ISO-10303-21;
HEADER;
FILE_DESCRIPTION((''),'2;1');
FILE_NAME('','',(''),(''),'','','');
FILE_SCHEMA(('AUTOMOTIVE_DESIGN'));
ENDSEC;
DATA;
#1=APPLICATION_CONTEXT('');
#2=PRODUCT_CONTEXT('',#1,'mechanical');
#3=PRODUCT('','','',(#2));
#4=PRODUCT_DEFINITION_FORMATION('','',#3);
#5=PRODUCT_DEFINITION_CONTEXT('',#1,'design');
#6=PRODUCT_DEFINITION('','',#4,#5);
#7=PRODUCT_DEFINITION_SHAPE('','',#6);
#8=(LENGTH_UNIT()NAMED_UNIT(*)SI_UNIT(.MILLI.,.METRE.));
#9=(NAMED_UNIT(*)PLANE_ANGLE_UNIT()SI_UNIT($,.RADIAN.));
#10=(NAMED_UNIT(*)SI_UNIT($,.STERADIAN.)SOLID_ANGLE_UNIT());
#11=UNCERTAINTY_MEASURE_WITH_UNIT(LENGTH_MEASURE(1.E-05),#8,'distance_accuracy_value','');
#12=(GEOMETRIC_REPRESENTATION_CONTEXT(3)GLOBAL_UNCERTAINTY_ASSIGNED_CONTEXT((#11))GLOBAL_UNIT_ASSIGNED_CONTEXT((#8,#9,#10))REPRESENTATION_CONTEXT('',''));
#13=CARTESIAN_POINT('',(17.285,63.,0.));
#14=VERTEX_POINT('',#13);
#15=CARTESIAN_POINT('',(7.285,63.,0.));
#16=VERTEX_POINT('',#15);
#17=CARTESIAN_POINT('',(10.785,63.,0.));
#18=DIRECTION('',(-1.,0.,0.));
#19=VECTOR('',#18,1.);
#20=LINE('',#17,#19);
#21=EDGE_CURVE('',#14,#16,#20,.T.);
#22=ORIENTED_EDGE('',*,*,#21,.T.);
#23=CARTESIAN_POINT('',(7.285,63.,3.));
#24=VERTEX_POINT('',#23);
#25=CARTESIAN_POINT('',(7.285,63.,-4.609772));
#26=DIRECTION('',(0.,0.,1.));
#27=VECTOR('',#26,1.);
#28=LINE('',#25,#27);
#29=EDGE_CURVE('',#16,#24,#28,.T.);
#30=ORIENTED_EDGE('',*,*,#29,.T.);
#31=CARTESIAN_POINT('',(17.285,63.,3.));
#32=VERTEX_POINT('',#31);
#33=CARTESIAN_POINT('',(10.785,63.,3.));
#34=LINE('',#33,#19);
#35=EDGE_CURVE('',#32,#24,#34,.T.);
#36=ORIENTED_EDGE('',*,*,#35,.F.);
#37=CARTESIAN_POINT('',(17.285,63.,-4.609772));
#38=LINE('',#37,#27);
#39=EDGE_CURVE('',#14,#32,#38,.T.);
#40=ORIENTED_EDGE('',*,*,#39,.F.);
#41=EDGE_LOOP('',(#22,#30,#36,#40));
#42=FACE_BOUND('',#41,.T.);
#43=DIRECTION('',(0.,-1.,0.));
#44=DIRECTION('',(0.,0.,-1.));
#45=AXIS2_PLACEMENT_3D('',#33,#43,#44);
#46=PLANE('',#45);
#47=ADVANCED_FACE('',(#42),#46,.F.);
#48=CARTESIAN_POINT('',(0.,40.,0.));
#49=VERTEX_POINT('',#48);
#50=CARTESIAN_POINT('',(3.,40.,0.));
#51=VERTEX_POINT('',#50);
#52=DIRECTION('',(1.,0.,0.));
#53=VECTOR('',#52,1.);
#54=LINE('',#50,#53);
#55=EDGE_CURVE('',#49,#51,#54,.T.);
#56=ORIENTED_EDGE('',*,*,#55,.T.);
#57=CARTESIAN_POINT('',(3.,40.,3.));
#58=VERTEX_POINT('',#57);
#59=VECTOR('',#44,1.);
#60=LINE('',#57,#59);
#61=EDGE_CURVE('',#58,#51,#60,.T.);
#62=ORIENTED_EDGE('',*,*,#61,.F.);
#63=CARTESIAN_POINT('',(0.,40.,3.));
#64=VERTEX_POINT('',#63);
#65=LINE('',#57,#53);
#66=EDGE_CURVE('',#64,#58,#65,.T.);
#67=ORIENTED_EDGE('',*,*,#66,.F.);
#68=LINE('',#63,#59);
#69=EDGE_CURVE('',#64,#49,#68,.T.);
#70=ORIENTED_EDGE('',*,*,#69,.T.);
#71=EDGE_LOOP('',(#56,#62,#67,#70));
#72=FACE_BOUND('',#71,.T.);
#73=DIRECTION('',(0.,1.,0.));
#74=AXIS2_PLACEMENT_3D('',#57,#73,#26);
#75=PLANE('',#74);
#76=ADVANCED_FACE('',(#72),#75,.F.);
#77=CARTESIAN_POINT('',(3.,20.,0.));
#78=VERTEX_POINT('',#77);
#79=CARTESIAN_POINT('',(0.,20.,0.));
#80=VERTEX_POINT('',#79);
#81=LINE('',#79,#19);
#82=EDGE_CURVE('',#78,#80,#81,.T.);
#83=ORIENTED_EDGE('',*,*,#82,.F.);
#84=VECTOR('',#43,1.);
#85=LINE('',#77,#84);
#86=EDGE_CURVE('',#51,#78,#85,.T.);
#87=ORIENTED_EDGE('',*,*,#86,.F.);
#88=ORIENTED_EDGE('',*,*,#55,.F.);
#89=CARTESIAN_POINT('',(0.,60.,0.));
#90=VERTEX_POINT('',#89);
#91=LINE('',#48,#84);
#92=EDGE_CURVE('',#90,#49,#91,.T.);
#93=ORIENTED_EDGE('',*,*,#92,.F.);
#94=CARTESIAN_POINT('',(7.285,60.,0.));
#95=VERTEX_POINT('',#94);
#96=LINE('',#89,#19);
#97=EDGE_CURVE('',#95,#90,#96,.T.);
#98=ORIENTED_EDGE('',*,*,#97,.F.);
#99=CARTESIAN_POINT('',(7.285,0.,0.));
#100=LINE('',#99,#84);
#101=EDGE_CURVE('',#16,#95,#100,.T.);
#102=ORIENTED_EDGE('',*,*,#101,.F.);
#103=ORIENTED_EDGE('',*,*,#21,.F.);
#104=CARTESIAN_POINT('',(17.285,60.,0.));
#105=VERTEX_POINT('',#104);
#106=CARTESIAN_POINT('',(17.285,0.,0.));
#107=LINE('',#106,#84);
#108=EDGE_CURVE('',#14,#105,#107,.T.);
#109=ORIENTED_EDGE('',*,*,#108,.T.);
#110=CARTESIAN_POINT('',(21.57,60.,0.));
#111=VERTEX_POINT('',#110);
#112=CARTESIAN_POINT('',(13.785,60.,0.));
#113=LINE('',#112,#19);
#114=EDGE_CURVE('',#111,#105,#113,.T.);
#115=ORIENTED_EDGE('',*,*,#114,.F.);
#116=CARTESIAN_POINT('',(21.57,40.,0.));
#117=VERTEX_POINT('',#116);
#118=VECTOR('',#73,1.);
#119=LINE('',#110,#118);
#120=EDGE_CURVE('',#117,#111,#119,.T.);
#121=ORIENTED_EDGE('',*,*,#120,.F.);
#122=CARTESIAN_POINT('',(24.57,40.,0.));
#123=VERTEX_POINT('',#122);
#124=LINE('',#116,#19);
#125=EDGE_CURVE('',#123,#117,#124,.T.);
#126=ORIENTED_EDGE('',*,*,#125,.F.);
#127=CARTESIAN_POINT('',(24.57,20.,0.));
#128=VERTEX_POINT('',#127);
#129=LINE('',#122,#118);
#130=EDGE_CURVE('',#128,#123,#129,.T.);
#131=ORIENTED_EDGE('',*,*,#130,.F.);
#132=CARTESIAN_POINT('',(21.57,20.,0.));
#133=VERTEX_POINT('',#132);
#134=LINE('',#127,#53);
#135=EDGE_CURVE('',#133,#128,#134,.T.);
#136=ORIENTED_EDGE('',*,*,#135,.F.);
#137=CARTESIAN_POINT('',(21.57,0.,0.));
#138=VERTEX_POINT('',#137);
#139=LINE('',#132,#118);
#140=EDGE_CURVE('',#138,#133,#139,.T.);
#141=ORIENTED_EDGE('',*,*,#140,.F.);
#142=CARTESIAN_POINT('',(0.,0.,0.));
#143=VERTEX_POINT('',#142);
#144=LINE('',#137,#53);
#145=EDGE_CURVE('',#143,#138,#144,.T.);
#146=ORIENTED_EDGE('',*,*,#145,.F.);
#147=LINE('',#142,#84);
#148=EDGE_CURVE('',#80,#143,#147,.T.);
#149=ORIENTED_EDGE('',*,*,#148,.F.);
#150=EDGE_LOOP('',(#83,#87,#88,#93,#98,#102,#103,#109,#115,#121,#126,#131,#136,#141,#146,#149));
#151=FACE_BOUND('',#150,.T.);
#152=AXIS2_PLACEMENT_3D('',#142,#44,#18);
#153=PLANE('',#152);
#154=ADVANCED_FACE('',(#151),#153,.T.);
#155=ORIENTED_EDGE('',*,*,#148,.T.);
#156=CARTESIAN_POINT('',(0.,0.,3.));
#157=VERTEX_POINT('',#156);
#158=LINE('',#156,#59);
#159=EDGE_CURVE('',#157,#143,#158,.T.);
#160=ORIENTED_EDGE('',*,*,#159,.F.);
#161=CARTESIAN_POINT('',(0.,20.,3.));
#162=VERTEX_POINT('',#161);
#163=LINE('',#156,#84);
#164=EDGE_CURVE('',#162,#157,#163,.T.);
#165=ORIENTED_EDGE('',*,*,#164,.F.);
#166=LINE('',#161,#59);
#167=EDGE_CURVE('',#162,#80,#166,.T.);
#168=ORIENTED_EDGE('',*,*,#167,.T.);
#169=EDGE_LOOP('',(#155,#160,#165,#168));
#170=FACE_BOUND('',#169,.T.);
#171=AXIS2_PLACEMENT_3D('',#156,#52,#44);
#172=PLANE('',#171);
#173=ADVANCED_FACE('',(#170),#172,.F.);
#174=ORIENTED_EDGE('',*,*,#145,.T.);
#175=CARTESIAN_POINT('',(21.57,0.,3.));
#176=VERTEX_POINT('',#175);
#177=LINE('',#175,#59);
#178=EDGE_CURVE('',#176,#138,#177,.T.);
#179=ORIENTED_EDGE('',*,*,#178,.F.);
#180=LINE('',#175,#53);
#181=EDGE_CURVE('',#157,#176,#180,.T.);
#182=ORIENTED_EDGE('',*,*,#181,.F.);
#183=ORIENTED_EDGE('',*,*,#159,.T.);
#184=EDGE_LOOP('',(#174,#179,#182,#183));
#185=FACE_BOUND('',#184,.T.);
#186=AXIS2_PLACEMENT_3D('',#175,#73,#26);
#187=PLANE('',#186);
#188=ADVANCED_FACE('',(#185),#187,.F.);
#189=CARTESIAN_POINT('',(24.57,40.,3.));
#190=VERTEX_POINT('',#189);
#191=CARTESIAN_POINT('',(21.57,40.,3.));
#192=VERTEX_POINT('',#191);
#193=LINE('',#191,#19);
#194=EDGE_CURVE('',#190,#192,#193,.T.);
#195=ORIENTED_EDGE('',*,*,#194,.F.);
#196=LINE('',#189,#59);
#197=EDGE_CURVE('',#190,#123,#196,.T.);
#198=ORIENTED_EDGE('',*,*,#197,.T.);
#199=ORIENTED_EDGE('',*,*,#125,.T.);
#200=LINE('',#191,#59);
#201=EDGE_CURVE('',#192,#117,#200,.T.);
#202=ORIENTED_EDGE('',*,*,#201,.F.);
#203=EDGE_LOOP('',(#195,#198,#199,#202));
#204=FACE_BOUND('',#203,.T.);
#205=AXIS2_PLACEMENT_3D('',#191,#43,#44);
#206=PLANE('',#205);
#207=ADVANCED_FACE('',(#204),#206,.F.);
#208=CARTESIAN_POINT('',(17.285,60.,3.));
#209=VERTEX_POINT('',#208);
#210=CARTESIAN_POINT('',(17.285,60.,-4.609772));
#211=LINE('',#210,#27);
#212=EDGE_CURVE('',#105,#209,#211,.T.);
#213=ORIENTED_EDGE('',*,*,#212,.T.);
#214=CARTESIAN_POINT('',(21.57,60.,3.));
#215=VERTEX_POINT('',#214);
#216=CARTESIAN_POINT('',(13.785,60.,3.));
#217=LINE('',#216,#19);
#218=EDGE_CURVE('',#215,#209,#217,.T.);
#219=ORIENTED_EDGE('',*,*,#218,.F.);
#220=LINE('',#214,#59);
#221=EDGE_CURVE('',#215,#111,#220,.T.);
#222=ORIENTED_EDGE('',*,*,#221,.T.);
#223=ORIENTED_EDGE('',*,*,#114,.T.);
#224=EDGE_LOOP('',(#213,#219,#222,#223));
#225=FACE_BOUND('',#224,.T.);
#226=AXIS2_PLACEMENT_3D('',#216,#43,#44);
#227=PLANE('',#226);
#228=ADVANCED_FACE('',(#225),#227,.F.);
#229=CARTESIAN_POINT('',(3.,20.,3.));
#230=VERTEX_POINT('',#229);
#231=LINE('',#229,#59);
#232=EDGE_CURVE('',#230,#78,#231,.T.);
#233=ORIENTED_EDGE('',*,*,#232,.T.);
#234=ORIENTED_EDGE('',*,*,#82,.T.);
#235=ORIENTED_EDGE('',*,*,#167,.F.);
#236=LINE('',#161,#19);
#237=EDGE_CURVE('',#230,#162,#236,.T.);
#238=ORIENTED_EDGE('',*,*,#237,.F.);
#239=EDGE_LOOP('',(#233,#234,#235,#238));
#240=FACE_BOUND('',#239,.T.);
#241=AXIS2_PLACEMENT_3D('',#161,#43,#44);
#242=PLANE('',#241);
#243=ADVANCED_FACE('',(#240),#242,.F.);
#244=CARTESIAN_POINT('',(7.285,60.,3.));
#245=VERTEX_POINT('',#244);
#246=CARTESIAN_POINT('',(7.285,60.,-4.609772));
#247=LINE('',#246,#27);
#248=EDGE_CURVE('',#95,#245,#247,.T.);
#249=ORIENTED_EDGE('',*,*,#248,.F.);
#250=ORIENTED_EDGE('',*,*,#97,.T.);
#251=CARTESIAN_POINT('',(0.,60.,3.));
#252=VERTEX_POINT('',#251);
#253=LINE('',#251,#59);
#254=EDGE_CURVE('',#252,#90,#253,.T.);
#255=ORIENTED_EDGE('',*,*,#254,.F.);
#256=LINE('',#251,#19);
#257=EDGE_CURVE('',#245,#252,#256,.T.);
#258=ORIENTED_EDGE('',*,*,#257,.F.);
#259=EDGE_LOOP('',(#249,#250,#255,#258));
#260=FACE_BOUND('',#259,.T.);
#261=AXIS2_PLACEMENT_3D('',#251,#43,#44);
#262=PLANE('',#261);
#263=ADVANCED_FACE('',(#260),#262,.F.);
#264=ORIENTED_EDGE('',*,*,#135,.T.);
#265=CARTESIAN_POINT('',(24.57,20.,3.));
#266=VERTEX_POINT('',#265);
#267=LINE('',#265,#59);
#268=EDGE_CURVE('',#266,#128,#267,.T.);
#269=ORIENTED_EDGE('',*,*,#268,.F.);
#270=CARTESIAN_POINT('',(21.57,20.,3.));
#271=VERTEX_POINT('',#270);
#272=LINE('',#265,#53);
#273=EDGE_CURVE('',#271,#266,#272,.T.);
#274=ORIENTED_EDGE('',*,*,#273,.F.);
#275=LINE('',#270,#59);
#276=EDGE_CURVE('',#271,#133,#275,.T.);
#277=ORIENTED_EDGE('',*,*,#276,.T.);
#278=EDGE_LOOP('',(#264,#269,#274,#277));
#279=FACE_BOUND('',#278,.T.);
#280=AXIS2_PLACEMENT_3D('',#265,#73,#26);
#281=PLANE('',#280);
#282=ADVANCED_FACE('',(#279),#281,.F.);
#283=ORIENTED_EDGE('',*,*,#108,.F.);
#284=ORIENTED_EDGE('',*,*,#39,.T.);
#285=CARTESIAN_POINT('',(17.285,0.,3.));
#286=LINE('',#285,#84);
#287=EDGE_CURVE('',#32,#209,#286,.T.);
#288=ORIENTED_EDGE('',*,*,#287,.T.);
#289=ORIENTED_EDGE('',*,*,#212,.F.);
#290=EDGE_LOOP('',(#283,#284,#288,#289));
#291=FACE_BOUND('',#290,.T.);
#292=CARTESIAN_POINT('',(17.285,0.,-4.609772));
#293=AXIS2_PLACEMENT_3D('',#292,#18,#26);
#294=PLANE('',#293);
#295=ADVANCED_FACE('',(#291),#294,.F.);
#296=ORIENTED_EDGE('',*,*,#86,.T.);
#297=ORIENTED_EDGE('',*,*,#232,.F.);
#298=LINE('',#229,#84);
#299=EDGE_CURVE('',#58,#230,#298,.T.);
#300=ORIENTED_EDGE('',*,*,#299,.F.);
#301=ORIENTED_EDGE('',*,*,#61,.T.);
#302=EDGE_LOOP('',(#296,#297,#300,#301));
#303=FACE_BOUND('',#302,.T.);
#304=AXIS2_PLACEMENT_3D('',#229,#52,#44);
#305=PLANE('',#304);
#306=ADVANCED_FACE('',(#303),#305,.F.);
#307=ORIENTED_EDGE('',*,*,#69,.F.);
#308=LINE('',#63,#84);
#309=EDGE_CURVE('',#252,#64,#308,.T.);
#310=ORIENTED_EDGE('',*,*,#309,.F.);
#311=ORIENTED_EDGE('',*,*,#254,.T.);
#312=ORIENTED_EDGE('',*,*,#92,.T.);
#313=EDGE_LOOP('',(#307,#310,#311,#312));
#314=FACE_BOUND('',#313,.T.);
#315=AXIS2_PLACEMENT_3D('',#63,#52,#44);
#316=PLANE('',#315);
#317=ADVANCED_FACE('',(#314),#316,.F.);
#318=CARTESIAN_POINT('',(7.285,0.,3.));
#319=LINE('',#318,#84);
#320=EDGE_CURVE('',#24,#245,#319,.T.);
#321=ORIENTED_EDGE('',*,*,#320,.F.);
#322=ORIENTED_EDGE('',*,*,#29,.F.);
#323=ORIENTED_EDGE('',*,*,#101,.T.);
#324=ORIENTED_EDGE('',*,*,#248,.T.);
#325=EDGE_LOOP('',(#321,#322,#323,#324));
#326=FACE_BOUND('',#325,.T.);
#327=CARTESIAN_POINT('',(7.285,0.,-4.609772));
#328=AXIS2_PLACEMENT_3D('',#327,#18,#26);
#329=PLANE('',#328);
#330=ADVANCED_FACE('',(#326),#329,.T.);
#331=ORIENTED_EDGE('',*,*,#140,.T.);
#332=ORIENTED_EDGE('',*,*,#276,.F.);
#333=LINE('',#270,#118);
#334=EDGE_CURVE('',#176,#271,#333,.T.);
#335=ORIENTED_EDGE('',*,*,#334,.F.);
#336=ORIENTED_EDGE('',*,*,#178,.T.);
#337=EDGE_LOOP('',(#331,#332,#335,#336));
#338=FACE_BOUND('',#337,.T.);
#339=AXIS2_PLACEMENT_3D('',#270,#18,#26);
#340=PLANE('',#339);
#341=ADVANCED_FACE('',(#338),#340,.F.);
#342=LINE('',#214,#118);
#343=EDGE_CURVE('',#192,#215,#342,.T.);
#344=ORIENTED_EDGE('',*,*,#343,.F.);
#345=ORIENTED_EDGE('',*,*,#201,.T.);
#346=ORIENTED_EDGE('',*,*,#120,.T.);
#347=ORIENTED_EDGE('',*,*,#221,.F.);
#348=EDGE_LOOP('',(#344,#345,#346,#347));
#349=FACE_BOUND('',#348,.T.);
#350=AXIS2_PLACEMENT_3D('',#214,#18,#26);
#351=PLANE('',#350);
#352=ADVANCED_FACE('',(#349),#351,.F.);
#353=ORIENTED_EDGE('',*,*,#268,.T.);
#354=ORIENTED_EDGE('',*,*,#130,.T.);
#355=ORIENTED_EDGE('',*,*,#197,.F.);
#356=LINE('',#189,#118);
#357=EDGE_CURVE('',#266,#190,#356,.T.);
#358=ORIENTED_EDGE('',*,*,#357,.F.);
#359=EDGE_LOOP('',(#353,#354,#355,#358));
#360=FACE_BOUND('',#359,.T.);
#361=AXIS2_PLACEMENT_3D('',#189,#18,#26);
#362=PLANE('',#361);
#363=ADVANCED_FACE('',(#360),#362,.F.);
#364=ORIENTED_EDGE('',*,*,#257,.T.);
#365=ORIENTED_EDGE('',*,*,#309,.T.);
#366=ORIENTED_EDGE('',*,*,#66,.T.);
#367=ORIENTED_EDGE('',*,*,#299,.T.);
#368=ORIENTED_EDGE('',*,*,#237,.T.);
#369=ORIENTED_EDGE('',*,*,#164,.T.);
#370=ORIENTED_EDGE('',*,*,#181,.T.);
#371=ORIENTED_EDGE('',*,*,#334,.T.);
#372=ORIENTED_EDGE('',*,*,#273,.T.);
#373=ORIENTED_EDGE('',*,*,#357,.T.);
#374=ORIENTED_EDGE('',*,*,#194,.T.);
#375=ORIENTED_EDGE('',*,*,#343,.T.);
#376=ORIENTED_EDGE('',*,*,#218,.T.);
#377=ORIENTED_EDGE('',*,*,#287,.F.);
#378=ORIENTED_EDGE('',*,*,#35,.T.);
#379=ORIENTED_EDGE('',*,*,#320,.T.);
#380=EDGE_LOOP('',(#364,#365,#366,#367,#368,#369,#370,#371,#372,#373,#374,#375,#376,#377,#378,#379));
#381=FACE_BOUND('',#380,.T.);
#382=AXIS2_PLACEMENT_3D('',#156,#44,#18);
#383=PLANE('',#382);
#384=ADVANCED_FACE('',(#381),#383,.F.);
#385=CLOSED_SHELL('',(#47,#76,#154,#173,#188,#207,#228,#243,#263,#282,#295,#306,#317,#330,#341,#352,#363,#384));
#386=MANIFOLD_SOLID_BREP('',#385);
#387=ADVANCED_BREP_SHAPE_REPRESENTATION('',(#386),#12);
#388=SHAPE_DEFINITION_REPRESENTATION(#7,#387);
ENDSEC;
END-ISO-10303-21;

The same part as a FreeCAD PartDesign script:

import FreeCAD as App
import Part
import Sketcher

V = App.Vector
Q = App.Units.Quantity


def add_polygon(sketch, points):
    """Adds a closed chain of lines whose ends are joined by coincident constraints."""
    first, n = sketch.GeometryCount, len(points)
    for a, b in zip(points, points[1:] + points[:1]):
        sketch.addGeometry(Part.LineSegment(App.Vector(*a, 0), App.Vector(*b, 0)), False)
    for i in range(n):
        sketch.addConstraint(Sketcher.Constraint("Coincident", first + i, 2, first + (i + 1) % n, 1))

doc = App.newDocument("Part")
body = doc.addObject("PartDesign::Body", "Body")

sketch1 = doc.addObject("Sketcher::SketchObject", "Sketch")
body.addObject(sketch1)
sketch1.AttachmentSupport = (doc.XY_Plane, [""])
sketch1.MapMode = "FlatFace"
add_polygon(sketch1, [(0, 0), (21.6, 0), (21.6, 20), (24.6, 20), (24.6, 40), (21.6, 40), (21.6, 60), (13.8, 60), (13.8, 63), (10.8, 63), (10.8, 60), (0, 60), (0, 40), (3, 40), (3, 20), (0, 20)])
sketch1.addConstraint(Sketcher.Constraint("Horizontal", 0))
sketch1.addConstraint(Sketcher.Constraint("Vertical", 1))
sketch1.addConstraint(Sketcher.Constraint("Horizontal", 2))
sketch1.addConstraint(Sketcher.Constraint("Vertical", 3))
sketch1.addConstraint(Sketcher.Constraint("Horizontal", 4))
sketch1.addConstraint(Sketcher.Constraint("Vertical", 5))
sketch1.addConstraint(Sketcher.Constraint("Horizontal", 6))
sketch1.addConstraint(Sketcher.Constraint("Vertical", 7))
sketch1.addConstraint(Sketcher.Constraint("Horizontal", 8))
sketch1.addConstraint(Sketcher.Constraint("Vertical", 9))
sketch1.addConstraint(Sketcher.Constraint("Horizontal", 10))
sketch1.addConstraint(Sketcher.Constraint("Vertical", 11))
sketch1.addConstraint(Sketcher.Constraint("Horizontal", 12))
sketch1.addConstraint(Sketcher.Constraint("Vertical", 13))
sketch1.addConstraint(Sketcher.Constraint("Horizontal", 14))
sketch1.addConstraint(Sketcher.Constraint("Vertical", 15))
sketch1.addConstraint(Sketcher.Constraint("Coincident", 15, 2, -1, 1))
sketch1.addConstraint(Sketcher.Constraint("PointOnObject", 10, 2, -2))
sketch1.addConstraint(Sketcher.Constraint("Horizontal", 6, 2, 9, 2))
sketch1.addConstraint(Sketcher.Constraint("Horizontal", 4, 2, 11, 2))
sketch1.addConstraint(Sketcher.Constraint("Horizontal", 2, 2, 13, 2))
sketch1.addConstraint(Sketcher.Constraint("Vertical", 1, 2, 4, 2))
sketch1.addConstraint(Sketcher.Constraint("Equal", 4, 8))
sketch1.addConstraint(Sketcher.Constraint("Equal", 8, 12))
sketch1.addConstraint(Sketcher.Constraint("Equal", 1, 3))
sketch1.addConstraint(Sketcher.Constraint("Equal", 3, 5))
sketch1.addConstraint(Sketcher.Constraint("Equal", 14, 7))
sketch1.addConstraint(Sketcher.Constraint("DistanceX", 2, 1, 2, 2, Q("3 mm")))
sketch1.addConstraint(Sketcher.Constraint("DistanceY", 1, 1, 1, 2, Q("20 mm")))
sketch1.addConstraint(Sketcher.Constraint("DistanceX", 0, 1, 0, 2, Q("21.57 mm")))
sketch1.addConstraint(Sketcher.Constraint("DistanceX", 6, 2, 6, 1, Q("7.785 mm")))
pad1 = doc.addObject("PartDesign::Pad", "Pad")
body.addObject(pad1)
pad1.Profile = sketch1
pad1.Length = 3

sketch2 = doc.addObject("Sketcher::SketchObject", "Sketch001")
body.addObject(sketch2)
sketch2.AttachmentSupport = (doc.XY_Plane, [""])
sketch2.MapMode = "FlatFace"
sketch2.AttachmentOffset = App.Placement(V(0, 0, 3), App.Rotation())
add_polygon(sketch2, [(7.3, 63), (7.3, 60), (10.8, 60), (10.8, 63)])
add_polygon(sketch2, [(13.8, 63), (13.8, 60), (17.3, 60), (17.3, 63)])
sketch2.addConstraint(Sketcher.Constraint("Vertical", 0))
sketch2.addConstraint(Sketcher.Constraint("Horizontal", 1))
sketch2.addConstraint(Sketcher.Constraint("Vertical", 2))
sketch2.addConstraint(Sketcher.Constraint("Horizontal", 3))
sketch2.addConstraint(Sketcher.Constraint("Vertical", 4))
sketch2.addConstraint(Sketcher.Constraint("Horizontal", 5))
sketch2.addConstraint(Sketcher.Constraint("Vertical", 6))
sketch2.addConstraint(Sketcher.Constraint("Horizontal", 7))
sketch2.addConstraint(Sketcher.Constraint("Horizontal", 1, 2, 4, 2))
sketch2.addConstraint(Sketcher.Constraint("Horizontal", 3, 2, 6, 2))
sketch2.addConstraint(Sketcher.Constraint("Equal", 3, 5))
sketch2.addConstraint(Sketcher.Constraint("DistanceY", 0, 2, 0, 1, Q("3 mm")))
sketch2.addConstraint(Sketcher.Constraint("DistanceX", 1, 1, 1, 2, Q("3.5 mm")))
sketch2.addConstraint(Sketcher.Constraint("DistanceY", -1, 1, 0, 2, Q("60 mm")))
sketch2.addConstraint(Sketcher.Constraint("DistanceX", 1, 2, 4, 2, Q("3 mm")))
sketch2.addConstraint(Sketcher.Constraint("DistanceX", -1, 1, 0, 2, Q("7.285 mm")))
pad2 = doc.addObject("PartDesign::Pad", "Pad001")
body.addObject(pad2)
pad2.Profile = sketch2
pad2.Length = 3
pad2.Reversed = True

doc.recompute()
